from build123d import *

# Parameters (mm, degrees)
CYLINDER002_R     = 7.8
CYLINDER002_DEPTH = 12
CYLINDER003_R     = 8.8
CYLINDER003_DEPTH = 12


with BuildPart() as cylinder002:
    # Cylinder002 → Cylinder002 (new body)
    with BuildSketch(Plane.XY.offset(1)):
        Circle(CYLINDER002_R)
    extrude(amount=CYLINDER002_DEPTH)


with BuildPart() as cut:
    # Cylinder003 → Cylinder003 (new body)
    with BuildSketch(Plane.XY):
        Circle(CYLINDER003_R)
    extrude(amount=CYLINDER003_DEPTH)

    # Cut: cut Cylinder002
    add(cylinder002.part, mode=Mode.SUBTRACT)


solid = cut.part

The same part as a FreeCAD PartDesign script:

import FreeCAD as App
import Part
import Sketcher

V = App.Vector
Q = App.Units.Quantity

doc = App.newDocument("Part")
body = doc.addObject("PartDesign::Body", "Body")

sketch1 = body.newObject("Sketcher::SketchObject", "Sketch")
sketch1.AttachmentSupport = (doc.getObject("XY_Plane"), [""])
sketch1.MapMode = "FlatFace"
sketch1.AttachmentOffset = App.Placement(V(0, 0, 1), App.Rotation())
sketch1.addGeometry(Part.Circle(V(0, 0, 0), V(0, 0, 1), 7.8), False)
sketch1.addConstraint(Sketcher.Constraint("Coincident", 0, 3, -1, 1))
sketch1.addConstraint(Sketcher.Constraint("Diameter", 0, Q("15.6 mm")))
pad1 = body.newObject("PartDesign::Pad", "Pad")
pad1.Profile = sketch1
pad1.Length = 12
body2 = doc.addObject("PartDesign::Body", "Body001")

sketch2 = body2.newObject("Sketcher::SketchObject", "Sketch001")
sketch2.AttachmentSupport = (doc.getObject("XY_Plane001"), [""])
sketch2.MapMode = "FlatFace"
sketch2.addGeometry(Part.Circle(V(0, 0, 0), V(0, 0, 1), 8.8), False)
sketch2.addConstraint(Sketcher.Constraint("Coincident", 0, 3, -1, 1))
sketch2.addConstraint(Sketcher.Constraint("Diameter", 0, Q("17.6 mm")))
pad2 = body2.newObject("PartDesign::Pad", "Pad001")
pad2.Profile = sketch2
pad2.Length = 12
doc.recompute()

boolean = body2.newObject("PartDesign::Boolean", "Boolean")
boolean.Type = "Cut"
boolean.addObjects([body])

doc.recompute()
